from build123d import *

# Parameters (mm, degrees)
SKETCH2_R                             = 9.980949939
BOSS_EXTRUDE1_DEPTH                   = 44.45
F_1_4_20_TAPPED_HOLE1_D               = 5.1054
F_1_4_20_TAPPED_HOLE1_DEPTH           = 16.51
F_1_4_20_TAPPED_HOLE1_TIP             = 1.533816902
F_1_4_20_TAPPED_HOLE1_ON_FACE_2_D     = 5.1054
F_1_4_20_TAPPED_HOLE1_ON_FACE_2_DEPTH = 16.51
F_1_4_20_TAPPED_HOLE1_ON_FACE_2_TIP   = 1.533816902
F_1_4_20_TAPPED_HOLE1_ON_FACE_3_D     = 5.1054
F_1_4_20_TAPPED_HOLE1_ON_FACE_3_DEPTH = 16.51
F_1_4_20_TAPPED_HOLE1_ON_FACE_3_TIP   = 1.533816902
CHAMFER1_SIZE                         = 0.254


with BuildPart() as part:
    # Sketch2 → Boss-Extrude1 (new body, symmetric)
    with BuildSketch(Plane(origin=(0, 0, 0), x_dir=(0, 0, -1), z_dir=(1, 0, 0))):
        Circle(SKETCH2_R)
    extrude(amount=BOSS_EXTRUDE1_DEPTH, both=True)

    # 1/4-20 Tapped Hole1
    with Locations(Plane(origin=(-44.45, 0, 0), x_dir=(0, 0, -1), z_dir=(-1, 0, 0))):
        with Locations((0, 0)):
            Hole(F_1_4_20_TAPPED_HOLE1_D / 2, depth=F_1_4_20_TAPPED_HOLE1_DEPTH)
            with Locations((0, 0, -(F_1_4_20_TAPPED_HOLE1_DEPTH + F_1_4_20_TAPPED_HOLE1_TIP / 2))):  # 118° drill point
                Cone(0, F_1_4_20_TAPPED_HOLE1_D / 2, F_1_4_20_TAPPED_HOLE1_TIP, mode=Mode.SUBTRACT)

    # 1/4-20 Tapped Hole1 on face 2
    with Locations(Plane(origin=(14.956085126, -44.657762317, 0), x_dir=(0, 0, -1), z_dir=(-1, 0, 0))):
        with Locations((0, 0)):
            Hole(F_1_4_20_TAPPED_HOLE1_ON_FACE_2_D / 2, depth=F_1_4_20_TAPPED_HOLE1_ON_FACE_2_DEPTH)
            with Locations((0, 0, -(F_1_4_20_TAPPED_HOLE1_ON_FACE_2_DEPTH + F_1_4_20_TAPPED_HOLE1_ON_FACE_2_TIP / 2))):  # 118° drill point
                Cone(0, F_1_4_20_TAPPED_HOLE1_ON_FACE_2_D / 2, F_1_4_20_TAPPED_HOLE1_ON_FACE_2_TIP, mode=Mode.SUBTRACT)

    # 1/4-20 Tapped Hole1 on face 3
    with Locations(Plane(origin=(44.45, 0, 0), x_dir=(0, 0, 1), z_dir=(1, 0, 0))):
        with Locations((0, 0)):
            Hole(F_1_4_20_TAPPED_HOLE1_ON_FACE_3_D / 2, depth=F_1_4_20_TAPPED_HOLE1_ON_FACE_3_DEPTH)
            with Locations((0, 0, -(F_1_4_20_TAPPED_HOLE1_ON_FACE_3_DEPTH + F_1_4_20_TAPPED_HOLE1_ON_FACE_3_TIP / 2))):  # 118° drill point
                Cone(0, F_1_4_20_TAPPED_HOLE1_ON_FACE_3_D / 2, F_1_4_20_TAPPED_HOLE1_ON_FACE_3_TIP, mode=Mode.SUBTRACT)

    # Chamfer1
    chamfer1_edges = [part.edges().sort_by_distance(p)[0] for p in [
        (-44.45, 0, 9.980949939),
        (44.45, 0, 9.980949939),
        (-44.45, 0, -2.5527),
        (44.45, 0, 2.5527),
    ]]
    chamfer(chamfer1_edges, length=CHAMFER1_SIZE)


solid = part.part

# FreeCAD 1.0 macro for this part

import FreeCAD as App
import Part
import Sketcher
Q = App.Units.Quantity


def edges_at(feature, points):
    """Names of the edges that pass closest to the given points."""
    edges = feature.Shape.Edges
    near = lambda p: min(range(len(edges)), key=lambda i: edges[i].distToShape(Part.Vertex(*p))[0])
    return sorted({f"Edge{near(p) + 1}" for p in points})

doc = App.newDocument("Part")
body = doc.addObject("PartDesign::Body", "Body")

# Sketch on YZ plane
sketch1 = body.newObject("Sketcher::SketchObject", "Sketch")
sketch1.AttachmentSupport = (doc.getObject("YZ_Plane"), [""])
sketch1.MapMode = "FlatFace"
sketch1.addGeometry(Part.Circle(App.Vector(0, 0, 0), App.Vector(0, 0, 1), 10), False)
sketch1.addConstraint([
    Sketcher.Constraint("Coincident", 0, 3, -1, 1),
    Sketcher.Constraint("Diameter", 0, Q("19.9619 mm")),
])
pad1 = body.newObject("PartDesign::Pad", "Pad")
pad1.Profile = sketch1
pad1.Length = Q("3.5 in")
pad1.Midplane = True

# Sketch on YZ plane
sketch2 = body.newObject("Sketcher::SketchObject", "Sketch001")
sketch2.AttachmentSupport = (doc.getObject("YZ_Plane"), [""])
sketch2.MapMode = "FlatFace"
sketch2.AttachmentOffset = App.Placement(App.Vector(0, 0, -1.75 * 25.4), App.Rotation())
sketch2.addGeometry(Part.Circle(App.Vector(0, 0, 0), App.Vector(0, 0, 1), 2.6), False)
sketch2.addConstraint([
    Sketcher.Constraint("Coincident", 0, 3, -1, 1),
    Sketcher.Constraint("Diameter", 0, Q("0.201 in")),
])
doc.recompute()
hole = body.newObject("PartDesign::Hole", "Hole")
hole.Profile = sketch2
hole.ThreadType = "None"
hole.Diameter = Q("0.201 in")
hole.DepthType = "Dimension"
hole.Depth = Q("0.65 in")
hole.DrillPoint = "Angled"
hole.DrillPointAngle = 118
hole.Reversed = True

# Sketch on YZ plane
sketch3 = body.newObject("Sketcher::SketchObject", "Sketch002")
sketch3.AttachmentSupport = (doc.getObject("YZ_Plane"), [""])
sketch3.MapMode = "FlatFace"
sketch3.AttachmentOffset = App.Placement(App.Vector(0, 0, 14.956085), App.Rotation())
sketch3.addGeometry(Part.Circle(App.Vector(-44.7, 0, 0), App.Vector(0, 0, 1), 2.6), False)
sketch3.addConstraint([
    Sketcher.Constraint("PointOnObject", 0, 3, -1),
    Sketcher.Constraint("Diameter", 0, Q("0.201 in")),
    Sketcher.Constraint("DistanceX", 0, 3, -1, 1, Q("44.657762 mm")),
])
doc.recompute()
hole2 = body.newObject("PartDesign::Hole", "Hole001")
hole2.Profile = sketch3
hole2.ThreadType = "None"
hole2.Diameter = Q("0.201 in")
hole2.DepthType = "Dimension"
hole2.Depth = Q("0.65 in")
hole2.DrillPoint = "Angled"
hole2.DrillPointAngle = 118
hole2.Reversed = True

# Sketch on YZ plane
sketch4 = body.newObject("Sketcher::SketchObject", "Sketch003")
sketch4.AttachmentSupport = (doc.getObject("YZ_Plane"), [""])
sketch4.MapMode = "FlatFace"
sketch4.AttachmentOffset = App.Placement(App.Vector(0, 0, 1.75 * 25.4), App.Rotation())
sketch4.addGeometry(Part.Circle(App.Vector(0, 0, 0), App.Vector(0, 0, 1), 2.6), False)
sketch4.addConstraint([
    Sketcher.Constraint("Coincident", 0, 3, -1, 1),
    Sketcher.Constraint("Diameter", 0, Q("0.201 in")),
])
doc.recompute()
hole3 = body.newObject("PartDesign::Hole", "Hole002")
hole3.Profile = sketch4
hole3.ThreadType = "None"
hole3.Diameter = Q("0.201 in")
hole3.DepthType = "Dimension"
hole3.Depth = Q("0.65 in")
hole3.DrillPoint = "Angled"
hole3.DrillPointAngle = 118
doc.recompute()

chamfer = body.newObject("PartDesign::Chamfer", "Chamfer")
chamfer.Base = (hole3, edges_at(hole3, [
    (-44.45, 0, 9.981),
    (44.45, 0, 9.981),
    (-44.45, 0, -2.553),
    (44.45, 0, 2.553),
]))
chamfer.Size = Q("0.01 in")

doc.recompute()
